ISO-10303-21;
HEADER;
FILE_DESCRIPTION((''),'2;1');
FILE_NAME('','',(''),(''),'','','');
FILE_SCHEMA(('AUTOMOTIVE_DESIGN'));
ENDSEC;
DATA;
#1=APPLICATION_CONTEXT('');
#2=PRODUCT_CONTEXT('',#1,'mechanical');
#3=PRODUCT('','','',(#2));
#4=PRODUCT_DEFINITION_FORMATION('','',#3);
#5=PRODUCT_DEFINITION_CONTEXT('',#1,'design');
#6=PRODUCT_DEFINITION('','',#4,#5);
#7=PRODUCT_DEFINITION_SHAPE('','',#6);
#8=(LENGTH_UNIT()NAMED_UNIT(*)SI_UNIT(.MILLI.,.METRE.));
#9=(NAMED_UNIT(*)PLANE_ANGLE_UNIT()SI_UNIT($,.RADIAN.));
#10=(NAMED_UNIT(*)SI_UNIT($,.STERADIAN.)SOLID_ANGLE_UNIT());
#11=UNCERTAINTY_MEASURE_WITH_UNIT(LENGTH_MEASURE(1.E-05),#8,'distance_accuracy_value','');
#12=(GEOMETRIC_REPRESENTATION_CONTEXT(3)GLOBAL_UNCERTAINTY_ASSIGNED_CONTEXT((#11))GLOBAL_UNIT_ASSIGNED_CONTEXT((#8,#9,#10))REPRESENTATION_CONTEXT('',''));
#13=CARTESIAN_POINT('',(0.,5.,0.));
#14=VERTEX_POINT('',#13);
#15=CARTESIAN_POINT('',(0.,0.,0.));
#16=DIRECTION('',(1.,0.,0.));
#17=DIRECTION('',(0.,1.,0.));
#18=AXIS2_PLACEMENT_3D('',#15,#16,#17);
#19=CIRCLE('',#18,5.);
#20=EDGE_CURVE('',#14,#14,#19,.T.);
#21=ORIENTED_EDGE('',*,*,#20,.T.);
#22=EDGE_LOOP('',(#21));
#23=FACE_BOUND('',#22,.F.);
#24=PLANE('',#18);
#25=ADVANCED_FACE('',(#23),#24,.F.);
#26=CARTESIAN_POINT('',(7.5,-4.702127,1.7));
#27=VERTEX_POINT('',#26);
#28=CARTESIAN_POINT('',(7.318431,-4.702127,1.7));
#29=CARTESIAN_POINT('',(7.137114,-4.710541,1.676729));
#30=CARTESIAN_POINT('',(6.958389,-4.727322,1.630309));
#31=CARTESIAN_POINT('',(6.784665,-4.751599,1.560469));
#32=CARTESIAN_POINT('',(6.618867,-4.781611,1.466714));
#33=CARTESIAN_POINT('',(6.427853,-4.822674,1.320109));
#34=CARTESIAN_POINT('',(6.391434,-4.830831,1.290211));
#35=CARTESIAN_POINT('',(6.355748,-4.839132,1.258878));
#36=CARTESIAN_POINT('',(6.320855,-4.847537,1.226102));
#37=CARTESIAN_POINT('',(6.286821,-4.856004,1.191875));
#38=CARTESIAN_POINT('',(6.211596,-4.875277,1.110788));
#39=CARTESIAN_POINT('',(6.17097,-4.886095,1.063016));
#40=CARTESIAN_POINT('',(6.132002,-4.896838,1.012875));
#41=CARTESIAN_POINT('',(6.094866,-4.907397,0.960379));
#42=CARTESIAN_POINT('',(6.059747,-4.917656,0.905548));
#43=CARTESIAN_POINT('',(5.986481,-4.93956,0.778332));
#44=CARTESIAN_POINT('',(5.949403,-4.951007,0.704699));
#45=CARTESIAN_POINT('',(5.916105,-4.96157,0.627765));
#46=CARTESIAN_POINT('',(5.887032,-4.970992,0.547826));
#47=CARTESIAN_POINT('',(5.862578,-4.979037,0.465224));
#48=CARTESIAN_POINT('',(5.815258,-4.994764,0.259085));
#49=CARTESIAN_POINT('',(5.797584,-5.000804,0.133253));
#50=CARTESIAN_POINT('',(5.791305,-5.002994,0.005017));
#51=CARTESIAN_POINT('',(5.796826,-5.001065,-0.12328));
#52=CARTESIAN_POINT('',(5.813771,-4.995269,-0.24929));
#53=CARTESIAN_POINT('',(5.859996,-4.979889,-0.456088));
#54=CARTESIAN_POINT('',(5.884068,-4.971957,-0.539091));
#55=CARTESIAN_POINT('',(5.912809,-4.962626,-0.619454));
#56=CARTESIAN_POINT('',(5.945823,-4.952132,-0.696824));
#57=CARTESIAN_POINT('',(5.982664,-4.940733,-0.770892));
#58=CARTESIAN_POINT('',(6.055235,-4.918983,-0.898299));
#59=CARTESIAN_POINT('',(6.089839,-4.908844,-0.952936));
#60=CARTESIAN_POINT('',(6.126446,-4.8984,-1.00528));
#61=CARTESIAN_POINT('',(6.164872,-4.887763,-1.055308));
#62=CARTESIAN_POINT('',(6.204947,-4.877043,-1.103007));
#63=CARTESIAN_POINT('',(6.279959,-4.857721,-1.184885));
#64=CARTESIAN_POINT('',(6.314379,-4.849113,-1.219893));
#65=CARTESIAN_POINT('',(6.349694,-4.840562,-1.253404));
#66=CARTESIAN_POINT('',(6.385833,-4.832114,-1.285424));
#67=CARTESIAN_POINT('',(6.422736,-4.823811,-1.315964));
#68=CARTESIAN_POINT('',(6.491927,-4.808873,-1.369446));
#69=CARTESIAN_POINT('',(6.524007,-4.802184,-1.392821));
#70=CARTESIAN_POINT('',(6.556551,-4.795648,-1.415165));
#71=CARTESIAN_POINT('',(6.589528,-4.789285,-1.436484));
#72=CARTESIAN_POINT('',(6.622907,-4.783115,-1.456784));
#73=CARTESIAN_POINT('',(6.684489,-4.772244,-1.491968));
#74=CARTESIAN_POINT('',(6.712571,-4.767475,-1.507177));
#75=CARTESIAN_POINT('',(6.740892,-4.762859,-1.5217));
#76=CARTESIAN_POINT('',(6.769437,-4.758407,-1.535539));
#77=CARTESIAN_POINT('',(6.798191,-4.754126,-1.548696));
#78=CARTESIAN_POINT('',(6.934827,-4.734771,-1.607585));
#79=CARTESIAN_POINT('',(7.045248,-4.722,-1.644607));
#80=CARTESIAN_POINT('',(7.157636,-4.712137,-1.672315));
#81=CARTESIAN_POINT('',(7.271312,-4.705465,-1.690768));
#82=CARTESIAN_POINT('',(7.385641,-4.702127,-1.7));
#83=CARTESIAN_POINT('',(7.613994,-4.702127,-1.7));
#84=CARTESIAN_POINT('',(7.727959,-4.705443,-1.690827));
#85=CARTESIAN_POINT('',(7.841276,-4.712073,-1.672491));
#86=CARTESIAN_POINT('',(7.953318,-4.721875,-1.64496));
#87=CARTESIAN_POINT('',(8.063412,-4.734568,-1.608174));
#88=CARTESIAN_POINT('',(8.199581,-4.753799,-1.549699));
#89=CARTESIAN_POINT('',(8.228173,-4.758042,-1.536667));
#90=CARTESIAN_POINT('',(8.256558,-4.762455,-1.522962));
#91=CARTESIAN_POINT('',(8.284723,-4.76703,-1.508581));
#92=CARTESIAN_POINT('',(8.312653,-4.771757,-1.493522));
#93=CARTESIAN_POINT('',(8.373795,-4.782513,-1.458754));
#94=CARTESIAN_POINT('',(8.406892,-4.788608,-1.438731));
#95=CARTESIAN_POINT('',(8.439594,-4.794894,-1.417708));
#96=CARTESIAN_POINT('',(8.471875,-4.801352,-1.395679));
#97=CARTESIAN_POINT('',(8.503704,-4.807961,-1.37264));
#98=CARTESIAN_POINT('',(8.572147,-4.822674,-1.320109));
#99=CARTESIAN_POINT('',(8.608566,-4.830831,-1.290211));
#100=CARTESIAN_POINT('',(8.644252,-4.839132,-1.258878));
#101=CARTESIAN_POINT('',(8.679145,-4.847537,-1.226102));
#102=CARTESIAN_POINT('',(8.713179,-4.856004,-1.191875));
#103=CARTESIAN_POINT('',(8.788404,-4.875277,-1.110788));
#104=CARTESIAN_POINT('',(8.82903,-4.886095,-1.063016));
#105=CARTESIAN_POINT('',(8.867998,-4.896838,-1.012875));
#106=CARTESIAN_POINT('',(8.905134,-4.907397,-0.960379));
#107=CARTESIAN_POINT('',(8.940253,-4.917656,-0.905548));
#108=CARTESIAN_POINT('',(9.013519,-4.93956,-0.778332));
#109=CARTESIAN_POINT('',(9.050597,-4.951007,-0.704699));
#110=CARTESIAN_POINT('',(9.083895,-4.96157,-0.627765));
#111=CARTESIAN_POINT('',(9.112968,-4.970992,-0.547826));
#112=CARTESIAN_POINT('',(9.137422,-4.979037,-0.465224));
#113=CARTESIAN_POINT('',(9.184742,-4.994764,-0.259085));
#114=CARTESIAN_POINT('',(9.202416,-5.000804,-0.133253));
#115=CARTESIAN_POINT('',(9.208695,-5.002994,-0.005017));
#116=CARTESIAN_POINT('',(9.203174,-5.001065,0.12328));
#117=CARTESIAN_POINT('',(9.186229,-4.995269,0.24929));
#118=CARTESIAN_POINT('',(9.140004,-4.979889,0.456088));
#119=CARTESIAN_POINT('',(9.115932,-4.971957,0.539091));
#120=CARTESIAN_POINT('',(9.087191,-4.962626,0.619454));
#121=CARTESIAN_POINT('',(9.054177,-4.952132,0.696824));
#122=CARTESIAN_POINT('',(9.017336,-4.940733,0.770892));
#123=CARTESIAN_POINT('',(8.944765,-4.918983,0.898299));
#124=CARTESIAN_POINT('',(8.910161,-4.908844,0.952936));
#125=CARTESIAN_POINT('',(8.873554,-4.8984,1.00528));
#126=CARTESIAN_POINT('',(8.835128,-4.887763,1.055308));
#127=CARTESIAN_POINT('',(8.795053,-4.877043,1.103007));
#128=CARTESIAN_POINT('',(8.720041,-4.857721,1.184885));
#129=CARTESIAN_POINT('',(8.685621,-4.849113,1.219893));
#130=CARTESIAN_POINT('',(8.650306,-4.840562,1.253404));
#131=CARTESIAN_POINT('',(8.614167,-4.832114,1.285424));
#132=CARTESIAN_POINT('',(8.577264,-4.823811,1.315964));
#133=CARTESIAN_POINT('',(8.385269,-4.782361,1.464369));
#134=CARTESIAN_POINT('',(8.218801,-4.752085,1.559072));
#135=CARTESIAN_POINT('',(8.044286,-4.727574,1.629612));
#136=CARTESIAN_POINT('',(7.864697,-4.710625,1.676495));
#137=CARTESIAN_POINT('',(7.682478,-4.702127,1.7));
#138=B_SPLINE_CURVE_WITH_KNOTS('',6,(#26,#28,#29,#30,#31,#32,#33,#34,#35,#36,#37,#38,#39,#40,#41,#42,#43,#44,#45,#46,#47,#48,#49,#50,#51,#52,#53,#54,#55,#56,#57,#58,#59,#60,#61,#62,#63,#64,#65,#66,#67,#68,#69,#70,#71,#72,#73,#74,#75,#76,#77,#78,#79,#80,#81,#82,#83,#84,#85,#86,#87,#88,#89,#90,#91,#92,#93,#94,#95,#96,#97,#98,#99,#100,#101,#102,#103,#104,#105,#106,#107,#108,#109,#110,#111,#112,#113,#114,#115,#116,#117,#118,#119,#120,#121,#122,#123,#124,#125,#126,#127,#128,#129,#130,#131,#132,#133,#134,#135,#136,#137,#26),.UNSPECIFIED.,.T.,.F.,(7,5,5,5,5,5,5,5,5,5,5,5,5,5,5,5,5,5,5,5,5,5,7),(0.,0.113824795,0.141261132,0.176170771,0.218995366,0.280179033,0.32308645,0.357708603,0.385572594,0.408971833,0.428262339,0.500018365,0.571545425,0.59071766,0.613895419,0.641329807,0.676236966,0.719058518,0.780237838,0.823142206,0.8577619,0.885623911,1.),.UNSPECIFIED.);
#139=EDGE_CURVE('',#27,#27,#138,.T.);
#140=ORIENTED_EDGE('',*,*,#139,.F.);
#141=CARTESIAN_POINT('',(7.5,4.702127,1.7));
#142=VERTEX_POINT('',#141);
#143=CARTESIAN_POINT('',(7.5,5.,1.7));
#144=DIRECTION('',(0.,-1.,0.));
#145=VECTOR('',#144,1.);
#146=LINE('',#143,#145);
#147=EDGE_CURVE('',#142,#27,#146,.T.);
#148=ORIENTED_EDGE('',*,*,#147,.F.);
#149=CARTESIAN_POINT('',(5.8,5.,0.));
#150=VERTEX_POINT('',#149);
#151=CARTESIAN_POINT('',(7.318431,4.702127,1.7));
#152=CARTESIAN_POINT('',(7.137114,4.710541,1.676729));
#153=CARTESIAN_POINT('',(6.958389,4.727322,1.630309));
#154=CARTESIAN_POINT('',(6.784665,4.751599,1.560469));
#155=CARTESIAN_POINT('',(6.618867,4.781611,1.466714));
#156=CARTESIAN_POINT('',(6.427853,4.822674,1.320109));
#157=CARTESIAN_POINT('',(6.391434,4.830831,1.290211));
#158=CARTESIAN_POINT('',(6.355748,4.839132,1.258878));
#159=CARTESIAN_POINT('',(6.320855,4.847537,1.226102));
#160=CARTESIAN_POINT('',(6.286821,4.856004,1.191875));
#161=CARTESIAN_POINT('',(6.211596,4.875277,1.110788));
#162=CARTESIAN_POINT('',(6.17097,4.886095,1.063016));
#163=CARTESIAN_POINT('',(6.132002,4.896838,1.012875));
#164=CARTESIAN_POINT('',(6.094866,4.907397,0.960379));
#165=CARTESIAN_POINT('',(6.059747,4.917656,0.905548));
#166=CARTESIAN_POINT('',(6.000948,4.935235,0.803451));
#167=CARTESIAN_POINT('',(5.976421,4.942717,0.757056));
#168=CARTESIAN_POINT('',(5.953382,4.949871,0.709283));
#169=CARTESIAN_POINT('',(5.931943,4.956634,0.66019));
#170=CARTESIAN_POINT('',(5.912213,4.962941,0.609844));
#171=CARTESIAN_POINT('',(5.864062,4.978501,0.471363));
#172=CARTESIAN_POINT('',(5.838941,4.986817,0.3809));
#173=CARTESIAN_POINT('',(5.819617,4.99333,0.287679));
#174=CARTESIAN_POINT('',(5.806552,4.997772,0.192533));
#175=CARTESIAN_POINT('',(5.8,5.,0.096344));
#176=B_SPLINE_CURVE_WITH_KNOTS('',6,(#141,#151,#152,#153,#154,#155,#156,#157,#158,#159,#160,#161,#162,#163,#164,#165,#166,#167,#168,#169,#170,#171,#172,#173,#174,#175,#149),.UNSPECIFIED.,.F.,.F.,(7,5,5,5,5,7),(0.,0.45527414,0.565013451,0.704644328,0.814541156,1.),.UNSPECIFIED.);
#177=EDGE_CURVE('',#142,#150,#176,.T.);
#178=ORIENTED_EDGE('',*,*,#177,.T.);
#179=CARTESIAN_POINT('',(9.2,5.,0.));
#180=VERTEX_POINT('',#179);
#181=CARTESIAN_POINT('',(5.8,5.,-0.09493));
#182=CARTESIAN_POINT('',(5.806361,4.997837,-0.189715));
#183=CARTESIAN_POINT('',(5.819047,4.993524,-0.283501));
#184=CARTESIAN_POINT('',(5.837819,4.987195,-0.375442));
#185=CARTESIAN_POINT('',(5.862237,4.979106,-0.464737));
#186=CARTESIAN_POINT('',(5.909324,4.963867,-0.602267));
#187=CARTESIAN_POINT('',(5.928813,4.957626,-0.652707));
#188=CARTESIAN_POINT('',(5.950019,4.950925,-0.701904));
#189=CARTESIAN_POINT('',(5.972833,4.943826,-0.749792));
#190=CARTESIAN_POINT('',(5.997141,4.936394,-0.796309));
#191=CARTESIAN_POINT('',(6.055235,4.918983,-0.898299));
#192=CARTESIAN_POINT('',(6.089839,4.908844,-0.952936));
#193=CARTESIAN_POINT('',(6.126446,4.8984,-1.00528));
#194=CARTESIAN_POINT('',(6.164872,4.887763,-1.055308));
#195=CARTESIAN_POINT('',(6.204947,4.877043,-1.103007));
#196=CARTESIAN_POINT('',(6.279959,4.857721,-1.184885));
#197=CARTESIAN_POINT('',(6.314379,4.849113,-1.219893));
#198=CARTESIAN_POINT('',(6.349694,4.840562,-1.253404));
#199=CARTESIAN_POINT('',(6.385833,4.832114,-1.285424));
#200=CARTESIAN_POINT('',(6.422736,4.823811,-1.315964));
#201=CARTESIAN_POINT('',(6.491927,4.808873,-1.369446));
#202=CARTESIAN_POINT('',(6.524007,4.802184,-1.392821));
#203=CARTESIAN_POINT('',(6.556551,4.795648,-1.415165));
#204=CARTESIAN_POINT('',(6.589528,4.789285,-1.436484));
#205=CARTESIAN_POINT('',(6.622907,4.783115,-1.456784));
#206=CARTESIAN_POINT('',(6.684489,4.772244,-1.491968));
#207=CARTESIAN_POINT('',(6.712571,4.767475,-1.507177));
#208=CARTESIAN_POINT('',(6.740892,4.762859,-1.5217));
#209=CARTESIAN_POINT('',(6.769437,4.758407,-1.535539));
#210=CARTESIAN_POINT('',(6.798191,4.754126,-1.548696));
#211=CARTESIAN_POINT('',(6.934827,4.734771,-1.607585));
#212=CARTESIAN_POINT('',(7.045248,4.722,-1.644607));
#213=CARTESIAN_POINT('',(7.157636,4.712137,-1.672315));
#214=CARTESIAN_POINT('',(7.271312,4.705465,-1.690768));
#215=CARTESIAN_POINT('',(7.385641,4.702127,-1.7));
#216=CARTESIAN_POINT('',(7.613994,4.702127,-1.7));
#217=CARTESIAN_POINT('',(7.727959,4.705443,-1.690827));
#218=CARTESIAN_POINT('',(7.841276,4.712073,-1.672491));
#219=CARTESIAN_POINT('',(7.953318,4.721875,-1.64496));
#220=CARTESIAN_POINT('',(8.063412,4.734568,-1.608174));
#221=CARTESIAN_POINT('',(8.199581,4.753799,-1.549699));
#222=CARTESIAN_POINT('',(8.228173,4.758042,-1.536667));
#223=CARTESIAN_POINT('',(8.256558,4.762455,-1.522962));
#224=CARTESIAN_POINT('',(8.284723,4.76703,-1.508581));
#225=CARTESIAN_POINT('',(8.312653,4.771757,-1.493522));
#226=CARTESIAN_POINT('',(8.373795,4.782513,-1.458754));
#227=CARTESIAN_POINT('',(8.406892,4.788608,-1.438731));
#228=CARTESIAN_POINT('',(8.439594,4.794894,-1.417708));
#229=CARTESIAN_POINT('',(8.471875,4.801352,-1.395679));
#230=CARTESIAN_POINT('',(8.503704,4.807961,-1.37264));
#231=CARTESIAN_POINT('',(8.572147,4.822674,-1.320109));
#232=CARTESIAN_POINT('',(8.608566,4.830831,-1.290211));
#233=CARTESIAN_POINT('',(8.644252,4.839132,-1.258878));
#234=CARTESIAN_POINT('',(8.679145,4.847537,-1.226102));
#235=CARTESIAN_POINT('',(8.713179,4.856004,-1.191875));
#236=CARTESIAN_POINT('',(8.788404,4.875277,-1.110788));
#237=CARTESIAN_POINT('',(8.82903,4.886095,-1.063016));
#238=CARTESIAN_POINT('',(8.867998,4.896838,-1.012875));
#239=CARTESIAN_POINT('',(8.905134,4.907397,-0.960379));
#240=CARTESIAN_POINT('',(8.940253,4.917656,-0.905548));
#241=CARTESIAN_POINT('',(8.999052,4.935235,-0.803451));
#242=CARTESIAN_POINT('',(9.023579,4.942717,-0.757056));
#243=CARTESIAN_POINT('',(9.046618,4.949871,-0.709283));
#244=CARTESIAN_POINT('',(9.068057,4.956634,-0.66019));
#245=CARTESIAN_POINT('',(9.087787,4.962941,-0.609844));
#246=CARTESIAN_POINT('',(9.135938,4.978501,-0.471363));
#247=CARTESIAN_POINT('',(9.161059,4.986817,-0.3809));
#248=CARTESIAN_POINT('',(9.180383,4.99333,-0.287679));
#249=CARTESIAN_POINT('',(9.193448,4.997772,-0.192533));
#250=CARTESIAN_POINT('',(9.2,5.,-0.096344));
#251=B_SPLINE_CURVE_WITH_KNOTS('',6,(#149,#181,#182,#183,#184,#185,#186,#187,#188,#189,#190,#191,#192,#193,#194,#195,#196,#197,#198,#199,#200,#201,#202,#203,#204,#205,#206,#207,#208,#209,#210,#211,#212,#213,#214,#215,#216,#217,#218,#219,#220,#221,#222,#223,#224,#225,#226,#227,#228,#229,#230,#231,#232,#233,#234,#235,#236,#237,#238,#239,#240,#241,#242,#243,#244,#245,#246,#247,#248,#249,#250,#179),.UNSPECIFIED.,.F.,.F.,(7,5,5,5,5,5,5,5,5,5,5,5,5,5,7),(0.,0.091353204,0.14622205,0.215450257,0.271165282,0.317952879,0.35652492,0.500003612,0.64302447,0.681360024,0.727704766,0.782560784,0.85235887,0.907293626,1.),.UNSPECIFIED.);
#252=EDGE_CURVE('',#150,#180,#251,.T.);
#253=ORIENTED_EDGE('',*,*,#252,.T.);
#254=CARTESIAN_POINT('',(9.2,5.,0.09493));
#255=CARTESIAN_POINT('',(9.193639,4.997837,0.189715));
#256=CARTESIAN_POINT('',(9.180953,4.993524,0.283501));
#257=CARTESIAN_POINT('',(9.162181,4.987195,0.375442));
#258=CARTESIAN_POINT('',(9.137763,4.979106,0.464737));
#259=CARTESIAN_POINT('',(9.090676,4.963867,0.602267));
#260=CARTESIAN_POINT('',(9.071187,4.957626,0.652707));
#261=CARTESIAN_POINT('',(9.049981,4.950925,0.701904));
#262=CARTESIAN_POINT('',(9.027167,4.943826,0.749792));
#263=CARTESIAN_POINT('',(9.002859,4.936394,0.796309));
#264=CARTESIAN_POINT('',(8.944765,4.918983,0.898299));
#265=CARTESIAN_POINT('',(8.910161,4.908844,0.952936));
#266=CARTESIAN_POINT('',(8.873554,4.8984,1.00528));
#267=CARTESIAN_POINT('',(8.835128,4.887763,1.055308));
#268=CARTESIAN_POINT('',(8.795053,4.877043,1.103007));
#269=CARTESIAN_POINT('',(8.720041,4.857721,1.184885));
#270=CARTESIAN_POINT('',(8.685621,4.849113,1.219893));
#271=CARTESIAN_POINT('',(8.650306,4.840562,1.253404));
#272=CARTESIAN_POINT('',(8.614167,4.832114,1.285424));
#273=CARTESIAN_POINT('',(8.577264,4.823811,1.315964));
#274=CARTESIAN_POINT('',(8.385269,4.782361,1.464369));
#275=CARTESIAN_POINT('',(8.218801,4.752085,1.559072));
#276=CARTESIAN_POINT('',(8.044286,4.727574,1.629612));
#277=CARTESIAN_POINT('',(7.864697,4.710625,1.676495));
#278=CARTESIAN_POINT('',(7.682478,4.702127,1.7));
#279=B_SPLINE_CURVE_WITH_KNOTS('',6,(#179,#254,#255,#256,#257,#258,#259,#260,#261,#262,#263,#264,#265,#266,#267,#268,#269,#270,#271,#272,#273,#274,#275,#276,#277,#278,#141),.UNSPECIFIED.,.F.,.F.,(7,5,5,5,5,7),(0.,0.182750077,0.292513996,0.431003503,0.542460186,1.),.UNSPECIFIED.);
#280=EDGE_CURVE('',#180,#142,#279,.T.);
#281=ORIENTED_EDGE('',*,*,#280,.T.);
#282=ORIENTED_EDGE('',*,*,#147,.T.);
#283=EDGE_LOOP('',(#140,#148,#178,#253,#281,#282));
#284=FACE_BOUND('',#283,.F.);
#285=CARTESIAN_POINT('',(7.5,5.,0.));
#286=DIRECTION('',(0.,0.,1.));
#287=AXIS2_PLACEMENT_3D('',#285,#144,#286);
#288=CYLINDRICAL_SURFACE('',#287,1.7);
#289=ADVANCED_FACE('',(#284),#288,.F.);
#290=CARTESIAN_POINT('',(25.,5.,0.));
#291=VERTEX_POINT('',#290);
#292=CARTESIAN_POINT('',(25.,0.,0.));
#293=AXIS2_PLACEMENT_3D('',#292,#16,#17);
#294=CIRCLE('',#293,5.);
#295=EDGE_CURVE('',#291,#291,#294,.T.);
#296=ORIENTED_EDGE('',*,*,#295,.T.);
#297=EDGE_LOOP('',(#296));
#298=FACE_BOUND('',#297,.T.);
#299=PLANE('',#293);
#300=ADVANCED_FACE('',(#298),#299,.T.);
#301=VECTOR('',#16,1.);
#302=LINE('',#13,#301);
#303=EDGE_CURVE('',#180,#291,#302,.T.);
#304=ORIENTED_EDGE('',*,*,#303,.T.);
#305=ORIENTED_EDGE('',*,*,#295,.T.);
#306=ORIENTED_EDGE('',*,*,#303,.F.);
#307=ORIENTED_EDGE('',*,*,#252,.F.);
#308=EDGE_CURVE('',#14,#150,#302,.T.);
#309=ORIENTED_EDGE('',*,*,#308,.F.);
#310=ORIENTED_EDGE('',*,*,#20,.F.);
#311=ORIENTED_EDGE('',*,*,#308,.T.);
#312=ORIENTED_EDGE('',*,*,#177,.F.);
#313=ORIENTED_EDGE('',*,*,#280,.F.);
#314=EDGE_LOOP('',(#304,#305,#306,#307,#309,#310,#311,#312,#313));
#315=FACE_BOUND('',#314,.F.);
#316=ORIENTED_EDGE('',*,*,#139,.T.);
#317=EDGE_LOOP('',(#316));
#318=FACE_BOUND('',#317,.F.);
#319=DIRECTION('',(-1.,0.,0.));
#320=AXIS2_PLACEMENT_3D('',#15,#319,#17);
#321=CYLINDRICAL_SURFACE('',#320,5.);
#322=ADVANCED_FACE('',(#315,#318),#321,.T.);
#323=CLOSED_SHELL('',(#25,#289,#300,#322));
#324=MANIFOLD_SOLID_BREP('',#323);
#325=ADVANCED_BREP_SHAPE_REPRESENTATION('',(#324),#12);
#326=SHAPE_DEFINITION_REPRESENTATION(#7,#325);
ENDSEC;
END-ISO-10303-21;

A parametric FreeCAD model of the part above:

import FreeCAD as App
import Part
import Sketcher
from FreeCAD import Vector

doc = App.newDocument("Part")
body = doc.addObject("PartDesign::Body", "Body")

# Sketch on YZ plane
sketch1 = body.newObject("Sketcher::SketchObject", "Sketch")
sketch1.AttachmentSupport = (doc.getObject("YZ_Plane"), [""])
sketch1.MapMode = "FlatFace"
sketch1.addGeometry(Part.Circle(Vector(0, 0, 0), Vector(0, 0, 1), 5), False)
sketch1.addConstraint(Sketcher.Constraint("Coincident", 0, 3, -1, 1))
sketch1.addConstraint(Sketcher.Constraint("Diameter", 0, 10.0))
pad1 = body.newObject("PartDesign::Pad", "Pad")
pad1.Profile = sketch1
pad1.Length = 25

# Sketch on XZ plane
sketch2 = body.newObject("Sketcher::SketchObject", "Sketch001")
sketch2.AttachmentSupport = (doc.getObject("XZ_Plane"), [""])
sketch2.MapMode = "FlatFace"
sketch2.AttachmentOffset = App.Placement(Vector(0, 0, -5), App.Rotation())
sketch2.addGeometry(Part.Circle(Vector(7.5, 0, 0), Vector(0, 0, 1), 1.7), False)
sketch2.addConstraint(Sketcher.Constraint("PointOnObject", 0, 3, -1))
sketch2.addConstraint(Sketcher.Constraint("Diameter", 0, 3.4))
sketch2.addConstraint(Sketcher.Constraint("DistanceX", -1, 1, 0, 3, 7.5))
doc.recompute()
hole = body.newObject("PartDesign::Hole", "Hole")
hole.Profile = sketch2
hole.ThreadType = "None"
hole.Diameter = 3.4
hole.DepthType = "ThroughAll"
hole.Reversed = True

doc.recompute()
